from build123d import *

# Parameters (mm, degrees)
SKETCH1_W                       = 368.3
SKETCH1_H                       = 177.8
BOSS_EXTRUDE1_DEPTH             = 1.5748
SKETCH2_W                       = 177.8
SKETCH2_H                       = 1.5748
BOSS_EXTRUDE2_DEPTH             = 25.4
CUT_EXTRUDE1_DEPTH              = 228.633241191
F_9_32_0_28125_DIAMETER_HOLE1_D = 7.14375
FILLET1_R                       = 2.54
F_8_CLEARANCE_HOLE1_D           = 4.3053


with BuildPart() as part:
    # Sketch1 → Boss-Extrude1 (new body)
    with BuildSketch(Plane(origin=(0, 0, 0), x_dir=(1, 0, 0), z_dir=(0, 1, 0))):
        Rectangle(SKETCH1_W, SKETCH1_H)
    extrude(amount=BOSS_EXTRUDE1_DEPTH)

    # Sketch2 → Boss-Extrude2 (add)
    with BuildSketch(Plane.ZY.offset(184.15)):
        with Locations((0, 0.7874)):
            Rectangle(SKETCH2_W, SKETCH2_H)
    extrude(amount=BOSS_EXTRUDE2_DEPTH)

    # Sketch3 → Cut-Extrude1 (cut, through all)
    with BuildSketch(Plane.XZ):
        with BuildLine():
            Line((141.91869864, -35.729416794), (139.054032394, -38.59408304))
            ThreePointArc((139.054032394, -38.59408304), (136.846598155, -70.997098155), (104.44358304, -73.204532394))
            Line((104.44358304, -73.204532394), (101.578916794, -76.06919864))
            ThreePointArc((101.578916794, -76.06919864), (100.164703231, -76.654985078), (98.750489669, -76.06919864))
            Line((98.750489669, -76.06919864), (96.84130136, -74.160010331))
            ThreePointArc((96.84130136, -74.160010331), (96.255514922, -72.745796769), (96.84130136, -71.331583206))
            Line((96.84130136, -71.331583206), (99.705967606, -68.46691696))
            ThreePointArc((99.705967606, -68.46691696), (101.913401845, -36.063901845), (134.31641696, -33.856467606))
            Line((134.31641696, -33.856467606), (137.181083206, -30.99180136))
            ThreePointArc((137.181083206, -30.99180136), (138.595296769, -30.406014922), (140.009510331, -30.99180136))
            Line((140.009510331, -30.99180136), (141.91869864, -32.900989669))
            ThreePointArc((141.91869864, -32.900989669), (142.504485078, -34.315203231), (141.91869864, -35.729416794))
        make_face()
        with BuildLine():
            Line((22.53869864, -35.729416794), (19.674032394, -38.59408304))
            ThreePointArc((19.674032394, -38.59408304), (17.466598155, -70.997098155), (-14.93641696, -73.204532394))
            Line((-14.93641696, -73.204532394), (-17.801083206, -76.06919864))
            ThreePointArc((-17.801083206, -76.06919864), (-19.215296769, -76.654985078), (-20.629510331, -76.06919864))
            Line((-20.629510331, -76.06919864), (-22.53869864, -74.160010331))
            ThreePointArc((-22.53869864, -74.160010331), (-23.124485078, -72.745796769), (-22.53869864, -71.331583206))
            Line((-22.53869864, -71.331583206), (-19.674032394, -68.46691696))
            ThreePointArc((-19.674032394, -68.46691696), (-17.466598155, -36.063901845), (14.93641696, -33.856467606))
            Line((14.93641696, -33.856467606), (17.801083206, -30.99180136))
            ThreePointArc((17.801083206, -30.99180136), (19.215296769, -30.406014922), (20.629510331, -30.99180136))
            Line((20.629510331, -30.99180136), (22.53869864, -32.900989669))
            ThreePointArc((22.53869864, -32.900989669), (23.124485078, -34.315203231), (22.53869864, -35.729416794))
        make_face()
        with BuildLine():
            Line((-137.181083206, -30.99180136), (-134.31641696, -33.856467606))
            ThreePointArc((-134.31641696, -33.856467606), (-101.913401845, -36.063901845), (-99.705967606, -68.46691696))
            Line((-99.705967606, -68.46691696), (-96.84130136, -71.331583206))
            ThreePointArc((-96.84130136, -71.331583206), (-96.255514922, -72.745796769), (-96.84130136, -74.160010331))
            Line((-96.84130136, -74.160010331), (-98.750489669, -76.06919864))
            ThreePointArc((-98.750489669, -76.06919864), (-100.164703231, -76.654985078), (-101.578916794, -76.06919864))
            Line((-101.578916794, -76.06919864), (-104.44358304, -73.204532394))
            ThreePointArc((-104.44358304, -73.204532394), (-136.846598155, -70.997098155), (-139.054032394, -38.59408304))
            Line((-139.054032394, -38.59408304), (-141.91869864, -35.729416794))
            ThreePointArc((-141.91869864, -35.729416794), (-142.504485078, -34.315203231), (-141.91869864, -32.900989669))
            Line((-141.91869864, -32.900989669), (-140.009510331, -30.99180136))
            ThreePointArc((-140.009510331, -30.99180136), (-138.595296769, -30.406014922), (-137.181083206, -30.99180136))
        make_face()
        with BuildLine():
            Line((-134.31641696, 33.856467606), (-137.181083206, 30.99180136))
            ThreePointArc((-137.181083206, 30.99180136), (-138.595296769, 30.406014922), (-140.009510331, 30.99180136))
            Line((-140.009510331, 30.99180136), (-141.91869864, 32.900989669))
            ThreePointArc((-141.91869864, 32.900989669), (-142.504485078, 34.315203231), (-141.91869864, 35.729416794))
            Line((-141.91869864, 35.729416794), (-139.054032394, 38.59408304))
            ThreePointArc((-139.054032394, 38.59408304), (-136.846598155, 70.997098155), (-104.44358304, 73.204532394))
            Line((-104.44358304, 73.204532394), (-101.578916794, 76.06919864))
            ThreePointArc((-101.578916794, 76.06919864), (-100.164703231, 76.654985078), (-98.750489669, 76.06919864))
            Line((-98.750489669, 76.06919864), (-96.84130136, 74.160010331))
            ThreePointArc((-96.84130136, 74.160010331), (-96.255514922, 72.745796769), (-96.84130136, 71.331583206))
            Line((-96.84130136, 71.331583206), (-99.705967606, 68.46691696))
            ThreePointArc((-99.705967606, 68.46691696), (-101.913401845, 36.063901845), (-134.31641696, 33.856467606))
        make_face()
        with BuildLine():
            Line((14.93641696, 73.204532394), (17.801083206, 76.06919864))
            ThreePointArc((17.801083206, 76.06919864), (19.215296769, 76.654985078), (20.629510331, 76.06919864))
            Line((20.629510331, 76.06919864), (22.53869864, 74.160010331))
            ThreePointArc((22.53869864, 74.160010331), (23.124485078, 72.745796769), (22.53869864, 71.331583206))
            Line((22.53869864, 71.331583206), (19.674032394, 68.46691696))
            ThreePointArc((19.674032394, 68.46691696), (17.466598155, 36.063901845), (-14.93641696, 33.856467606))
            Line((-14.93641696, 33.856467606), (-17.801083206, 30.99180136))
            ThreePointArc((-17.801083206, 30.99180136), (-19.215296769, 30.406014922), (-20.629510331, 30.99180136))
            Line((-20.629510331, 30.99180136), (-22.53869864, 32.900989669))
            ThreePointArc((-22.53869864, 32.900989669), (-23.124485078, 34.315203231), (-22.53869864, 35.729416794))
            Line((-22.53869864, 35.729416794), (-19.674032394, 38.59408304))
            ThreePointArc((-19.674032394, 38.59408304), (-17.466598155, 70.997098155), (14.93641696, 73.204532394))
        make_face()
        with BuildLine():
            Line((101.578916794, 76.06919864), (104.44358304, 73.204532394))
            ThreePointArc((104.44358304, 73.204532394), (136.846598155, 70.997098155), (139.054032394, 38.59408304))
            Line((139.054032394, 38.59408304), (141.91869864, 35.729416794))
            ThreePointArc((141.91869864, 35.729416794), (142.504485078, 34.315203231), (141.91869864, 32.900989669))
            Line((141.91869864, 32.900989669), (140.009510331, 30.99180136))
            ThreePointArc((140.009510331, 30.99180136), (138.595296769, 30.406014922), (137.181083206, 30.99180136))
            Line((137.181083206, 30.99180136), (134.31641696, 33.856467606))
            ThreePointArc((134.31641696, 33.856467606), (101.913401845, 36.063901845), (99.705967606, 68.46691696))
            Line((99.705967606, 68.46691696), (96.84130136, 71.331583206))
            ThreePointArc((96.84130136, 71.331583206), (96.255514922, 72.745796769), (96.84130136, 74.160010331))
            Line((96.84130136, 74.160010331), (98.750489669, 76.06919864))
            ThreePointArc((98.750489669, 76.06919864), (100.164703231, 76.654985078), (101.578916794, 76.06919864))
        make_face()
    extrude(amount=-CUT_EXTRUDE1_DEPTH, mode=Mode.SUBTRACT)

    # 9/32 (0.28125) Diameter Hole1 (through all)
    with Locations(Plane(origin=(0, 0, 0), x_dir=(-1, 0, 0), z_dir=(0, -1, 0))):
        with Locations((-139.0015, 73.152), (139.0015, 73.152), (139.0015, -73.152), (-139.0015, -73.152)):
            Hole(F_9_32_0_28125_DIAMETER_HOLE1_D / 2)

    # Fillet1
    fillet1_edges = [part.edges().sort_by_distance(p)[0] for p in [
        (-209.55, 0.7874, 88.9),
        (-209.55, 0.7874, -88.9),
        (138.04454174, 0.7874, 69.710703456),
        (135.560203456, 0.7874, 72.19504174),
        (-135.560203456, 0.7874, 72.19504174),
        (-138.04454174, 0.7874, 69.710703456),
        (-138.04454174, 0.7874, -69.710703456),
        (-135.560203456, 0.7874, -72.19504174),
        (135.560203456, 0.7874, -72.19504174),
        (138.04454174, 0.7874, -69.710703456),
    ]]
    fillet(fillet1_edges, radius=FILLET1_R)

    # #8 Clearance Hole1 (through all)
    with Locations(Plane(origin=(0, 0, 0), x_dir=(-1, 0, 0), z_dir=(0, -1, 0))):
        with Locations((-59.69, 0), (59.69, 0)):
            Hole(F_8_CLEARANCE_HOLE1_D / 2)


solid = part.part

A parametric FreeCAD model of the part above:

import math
import FreeCAD as App
import Part
import Sketcher
Q = App.Units.Quantity


def edges_at(feature, points):
    """Names of the edges that pass closest to the given points."""
    edges = feature.Shape.Edges
    near = lambda p: min(range(len(edges)), key=lambda i: edges[i].distToShape(Part.Vertex(*p))[0])
    return sorted({f"Edge{near(p) + 1}" for p in points})


def add_polygon(sketch, points):
    """Adds a closed chain of lines whose ends are joined by coincident constraints."""
    first, n = sketch.GeometryCount, len(points)
    for a, b in zip(points, points[1:] + points[:1]):
        sketch.addGeometry(Part.LineSegment(App.Vector(*a, 0), App.Vector(*b, 0)), False)
    for i in range(n):
        sketch.addConstraint(Sketcher.Constraint("Coincident", first + i, 2, first + (i + 1) % n, 1))

doc = App.newDocument("Part")
body = doc.addObject("PartDesign::Body", "Body")

# Sketch on XZ plane
sketch1 = body.newObject("Sketcher::SketchObject", "Sketch")
sketch1.AttachmentSupport = (doc.getObject("XZ_Plane"), [""])
sketch1.MapMode = "FlatFace"
add_polygon(sketch1, [(-184.15, -88.9), (-184.15, 88.9), (184.15, 88.9), (184.15, -88.9)])  # lines 0-3
sketch1.addConstraint(Sketcher.Constraint("Vertical", 0))
sketch1.addConstraint(Sketcher.Constraint("Horizontal", 1))
sketch1.addConstraint(Sketcher.Constraint("Vertical", 2))
sketch1.addConstraint(Sketcher.Constraint("Horizontal", 3))
sketch1.addConstraint(Sketcher.Constraint("Symmetric", 0, 2, 2, 2, -1, 1))
sketch1.addConstraint(Sketcher.Constraint("DistanceY", 0, 1, 0, 2, Q("7 in")))
sketch1.addConstraint(Sketcher.Constraint("DistanceX", 1, 1, 1, 2, Q("14.5 in")))
pad1 = body.newObject("PartDesign::Pad", "Pad")
pad1.Profile = sketch1
pad1.Length = Q("0.062 in")
pad1.Reversed = True

# Sketch on YZ plane
sketch2 = body.newObject("Sketcher::SketchObject", "Sketch001")
sketch2.AttachmentSupport = (doc.getObject("YZ_Plane"), [""])
sketch2.MapMode = "FlatFace"
sketch2.AttachmentOffset = App.Placement(App.Vector(0, 0, -7.25 * 25.4), App.Rotation())
add_polygon(sketch2, [(1.5748, -88.9), (0, -88.9), (0, 88.9), (1.5748, 88.9)])  # lines 0-3
sketch2.addConstraint(Sketcher.Constraint("Horizontal", 0))
sketch2.addConstraint(Sketcher.Constraint("Vertical", 1))
sketch2.addConstraint(Sketcher.Constraint("Horizontal", 2))
sketch2.addConstraint(Sketcher.Constraint("Vertical", 3))
sketch2.addConstraint(Sketcher.Constraint("Symmetric", 0, 2, 1, 2, -1, 1))
sketch2.addConstraint(Sketcher.Constraint("DistanceY", 1, 1, 1, 2, Q("7 in")))
sketch2.addConstraint(Sketcher.Constraint("DistanceX", 0, 2, 0, 1, Q("0.062 in")))
pad2 = body.newObject("PartDesign::Pad", "Pad001")
pad2.Profile = sketch2
pad2.Length = Q("1 in")
pad2.Reversed = True

# Sketch on XZ plane
sketch3 = body.newObject("Sketcher::SketchObject", "Sketch002")
sketch3.AttachmentSupport = (doc.getObject("XZ_Plane"), [""])
sketch3.MapMode = "FlatFace"
sketch3.addGeometry(Part.LineSegment(App.Vector(139.054032, -38.594083, 0), App.Vector(141.918699, -35.729417, 0)), False)
sketch3.addGeometry(Part.ArcOfCircle(Part.Circle(App.Vector(140.504485, -34.315203, 0), App.Vector(0, 0, 1), 2), math.radians(-45), math.radians(45)), False)
sketch3.addGeometry(Part.LineSegment(App.Vector(141.918699, -32.90099, 0), App.Vector(140.00951, -30.991801, 0)), False)
sketch3.addGeometry(Part.ArcOfCircle(Part.Circle(App.Vector(138.595297, -32.406015, 0), App.Vector(0, 0, 1), 2), math.radians(45), math.radians(135)), False)
sketch3.addGeometry(Part.LineSegment(App.Vector(137.181083, -30.991801, 0), App.Vector(134.316417, -33.856468, 0)), False)
sketch3.addGeometry(Part.ArcOfCircle(Part.Circle(App.Vector(119.38, -53.5305, 0), App.Vector(0, 0, 1), 24.7015), math.radians(52.794432), math.radians(217.205568)), False)
sketch3.addGeometry(Part.LineSegment(App.Vector(99.705968, -68.466917, 0), App.Vector(96.841301, -71.331583, 0)), False)
sketch3.addGeometry(Part.ArcOfCircle(Part.Circle(App.Vector(98.255515, -72.745797, 0), App.Vector(0, 0, 1), 2), math.radians(135), math.radians(225)), False)
sketch3.addGeometry(Part.LineSegment(App.Vector(96.841301, -74.16001, 0), App.Vector(98.75049, -76.069199, 0)), False)
sketch3.addGeometry(Part.ArcOfCircle(Part.Circle(App.Vector(100.164703, -74.654985, 0), App.Vector(0, 0, 1), 2), math.radians(-135), math.radians(-45)), False)
sketch3.addGeometry(Part.LineSegment(App.Vector(101.578917, -76.069199, 0), App.Vector(104.443583, -73.204532, 0)), False)
sketch3.addGeometry(Part.ArcOfCircle(Part.Circle(App.Vector(119.38, -53.5305, 0), App.Vector(0, 0, 1), 24.7015), math.radians(-127.205568), math.radians(37.205568)), False)
sketch3.addGeometry(Part.LineSegment(App.Vector(19.674032, -38.594083, 0), App.Vector(22.538699, -35.729417, 0)), False)
sketch3.addGeometry(Part.ArcOfCircle(Part.Circle(App.Vector(21.124485, -34.315203, 0), App.Vector(0, 0, 1), 2), math.radians(-45), math.radians(45)), False)
sketch3.addGeometry(Part.LineSegment(App.Vector(22.538699, -32.90099, 0), App.Vector(20.62951, -30.991801, 0)), False)
sketch3.addGeometry(Part.ArcOfCircle(Part.Circle(App.Vector(19.215297, -32.406015, 0), App.Vector(0, 0, 1), 2), math.radians(45), math.radians(135)), False)
sketch3.addGeometry(Part.LineSegment(App.Vector(17.801083, -30.991801, 0), App.Vector(14.936417, -33.856468, 0)), False)
sketch3.addGeometry(Part.ArcOfCircle(Part.Circle(App.Vector(0, -53.5305, 0), App.Vector(0, 0, 1), 24.7015), math.radians(52.794432), math.radians(217.205568)), False)
sketch3.addGeometry(Part.LineSegment(App.Vector(-19.674032, -68.466917, 0), App.Vector(-22.538699, -71.331583, 0)), False)
sketch3.addGeometry(Part.ArcOfCircle(Part.Circle(App.Vector(-21.124485, -72.745797, 0), App.Vector(0, 0, 1), 2), math.radians(135), math.radians(225)), False)
sketch3.addGeometry(Part.LineSegment(App.Vector(-22.538699, -74.16001, 0), App.Vector(-20.62951, -76.069199, 0)), False)
sketch3.addGeometry(Part.ArcOfCircle(Part.Circle(App.Vector(-19.215297, -74.654985, 0), App.Vector(0, 0, 1), 2), math.radians(-135), math.radians(-45)), False)
sketch3.addGeometry(Part.LineSegment(App.Vector(-17.801083, -76.069199, 0), App.Vector(-14.936417, -73.204532, 0)), False)
sketch3.addGeometry(Part.ArcOfCircle(Part.Circle(App.Vector(0, -53.5305, 0), App.Vector(0, 0, 1), 24.7015), math.radians(-127.205568), math.radians(37.205568)), False)
sketch3.addGeometry(Part.LineSegment(App.Vector(-134.316417, -33.856468, 0), App.Vector(-137.181083, -30.991801, 0)), False)
sketch3.addGeometry(Part.ArcOfCircle(Part.Circle(App.Vector(-138.595297, -32.406015, 0), App.Vector(0, 0, 1), 2), math.radians(45), math.radians(135)), False)
sketch3.addGeometry(Part.LineSegment(App.Vector(-140.00951, -30.991801, 0), App.Vector(-141.918699, -32.90099, 0)), False)
sketch3.addGeometry(Part.ArcOfCircle(Part.Circle(App.Vector(-140.504485, -34.315203, 0), App.Vector(0, 0, 1), 2), math.radians(135), math.radians(225)), False)
sketch3.addGeometry(Part.LineSegment(App.Vector(-141.918699, -35.729417, 0), App.Vector(-139.054032, -38.594083, 0)), False)
sketch3.addGeometry(Part.ArcOfCircle(Part.Circle(App.Vector(-119.38, -53.5305, 0), App.Vector(0, 0, 1), 24.7015), math.radians(142.794432), math.radians(307.205568)), False)
sketch3.addGeometry(Part.LineSegment(App.Vector(-104.443583, -73.204532, 0), App.Vector(-101.578917, -76.069199, 0)), False)
sketch3.addGeometry(Part.ArcOfCircle(Part.Circle(App.Vector(-100.164703, -74.654985, 0), App.Vector(0, 0, 1), 2), math.radians(-135), math.radians(-45)), False)
sketch3.addGeometry(Part.LineSegment(App.Vector(-98.75049, -76.069199, 0), App.Vector(-96.841301, -74.16001, 0)), False)
sketch3.addGeometry(Part.ArcOfCircle(Part.Circle(App.Vector(-98.255515, -72.745797, 0), App.Vector(0, 0, 1), 2), math.radians(-45), math.radians(45)), False)
sketch3.addGeometry(Part.LineSegment(App.Vector(-96.841301, -71.331583, 0), App.Vector(-99.705968, -68.466917, 0)), False)
sketch3.addGeometry(Part.ArcOfCircle(Part.Circle(App.Vector(-119.38, -53.5305, 0), App.Vector(0, 0, 1), 24.7015), math.radians(-37.205568), math.radians(127.205568)), False)
sketch3.addGeometry(Part.LineSegment(App.Vector(-137.181083, 30.991801, 0), App.Vector(-134.316417, 33.856468, 0)), False)
sketch3.addGeometry(Part.ArcOfCircle(Part.Circle(App.Vector(-119.38, 53.5305, 0), App.Vector(0, 0, 1), 24.7015), math.radians(-127.205568), math.radians(37.205568)), False)
sketch3.addGeometry(Part.LineSegment(App.Vector(-99.705968, 68.466917, 0), App.Vector(-96.841301, 71.331583, 0)), False)
sketch3.addGeometry(Part.ArcOfCircle(Part.Circle(App.Vector(-98.255515, 72.745797, 0), App.Vector(0, 0, 1), 2), math.radians(-45), math.radians(45)), False)
sketch3.addGeometry(Part.LineSegment(App.Vector(-96.841301, 74.16001, 0), App.Vector(-98.75049, 76.069199, 0)), False)
sketch3.addGeometry(Part.ArcOfCircle(Part.Circle(App.Vector(-100.164703, 74.654985, 0), App.Vector(0, 0, 1), 2), math.radians(45), math.radians(135)), False)
sketch3.addGeometry(Part.LineSegment(App.Vector(-101.578917, 76.069199, 0), App.Vector(-104.443583, 73.204532, 0)), False)
sketch3.addGeometry(Part.ArcOfCircle(Part.Circle(App.Vector(-119.38, 53.5305, 0), App.Vector(0, 0, 1), 24.7015), math.radians(52.794432), math.radians(217.205568)), False)
sketch3.addGeometry(Part.LineSegment(App.Vector(-139.054032, 38.594083, 0), App.Vector(-141.918699, 35.729417, 0)), False)
sketch3.addGeometry(Part.ArcOfCircle(Part.Circle(App.Vector(-140.504485, 34.315203, 0), App.Vector(0, 0, 1), 2), math.radians(135), math.radians(225)), False)
sketch3.addGeometry(Part.LineSegment(App.Vector(-141.918699, 32.90099, 0), App.Vector(-140.00951, 30.991801, 0)), False)
sketch3.addGeometry(Part.ArcOfCircle(Part.Circle(App.Vector(-138.595297, 32.406015, 0), App.Vector(0, 0, 1), 2), math.radians(-135), math.radians(-45)), False)
sketch3.addGeometry(Part.LineSegment(App.Vector(17.801083, 76.069199, 0), App.Vector(14.936417, 73.204532, 0)), False)
sketch3.addGeometry(Part.ArcOfCircle(Part.Circle(App.Vector(0, 53.5305, 0), App.Vector(0, 0, 1), 24.7015), math.radians(52.794432), math.radians(217.205568)), False)
sketch3.addGeometry(Part.LineSegment(App.Vector(-19.674032, 38.594083, 0), App.Vector(-22.538699, 35.729417, 0)), False)
sketch3.addGeometry(Part.ArcOfCircle(Part.Circle(App.Vector(-21.124485, 34.315203, 0), App.Vector(0, 0, 1), 2), math.radians(135), math.radians(225)), False)
sketch3.addGeometry(Part.LineSegment(App.Vector(-22.538699, 32.90099, 0), App.Vector(-20.62951, 30.991801, 0)), False)
sketch3.addGeometry(Part.ArcOfCircle(Part.Circle(App.Vector(-19.215297, 32.406015, 0), App.Vector(0, 0, 1), 2), math.radians(-135), math.radians(-45)), False)
sketch3.addGeometry(Part.LineSegment(App.Vector(-17.801083, 30.991801, 0), App.Vector(-14.936417, 33.856468, 0)), False)
sketch3.addGeometry(Part.ArcOfCircle(Part.Circle(App.Vector(0, 53.5305, 0), App.Vector(0, 0, 1), 24.7015), math.radians(-127.205568), math.radians(37.205568)), False)
sketch3.addGeometry(Part.LineSegment(App.Vector(19.674032, 68.466917, 0), App.Vector(22.538699, 71.331583, 0)), False)
sketch3.addGeometry(Part.ArcOfCircle(Part.Circle(App.Vector(21.124485, 72.745797, 0), App.Vector(0, 0, 1), 2), math.radians(-45), math.radians(45)), False)
sketch3.addGeometry(Part.LineSegment(App.Vector(22.538699, 74.16001, 0), App.Vector(20.62951, 76.069199, 0)), False)
sketch3.addGeometry(Part.ArcOfCircle(Part.Circle(App.Vector(19.215297, 74.654985, 0), App.Vector(0, 0, 1), 2), math.radians(45), math.radians(135)), False)
sketch3.addGeometry(Part.LineSegment(App.Vector(104.443583, 73.204532, 0), App.Vector(101.578917, 76.069199, 0)), False)
sketch3.addGeometry(Part.ArcOfCircle(Part.Circle(App.Vector(100.164703, 74.654985, 0), App.Vector(0, 0, 1), 2), math.radians(45), math.radians(135)), False)
sketch3.addGeometry(Part.LineSegment(App.Vector(98.75049, 76.069199, 0), App.Vector(96.841301, 74.16001, 0)), False)
sketch3.addGeometry(Part.ArcOfCircle(Part.Circle(App.Vector(98.255515, 72.745797, 0), App.Vector(0, 0, 1), 2), math.radians(135), math.radians(225)), False)
sketch3.addGeometry(Part.LineSegment(App.Vector(96.841301, 71.331583, 0), App.Vector(99.705968, 68.466917, 0)), False)
sketch3.addGeometry(Part.ArcOfCircle(Part.Circle(App.Vector(119.38, 53.5305, 0), App.Vector(0, 0, 1), 24.7015), math.radians(142.794432), math.radians(307.205568)), False)
sketch3.addGeometry(Part.LineSegment(App.Vector(134.316417, 33.856468, 0), App.Vector(137.181083, 30.991801, 0)), False)
sketch3.addGeometry(Part.ArcOfCircle(Part.Circle(App.Vector(138.595297, 32.406015, 0), App.Vector(0, 0, 1), 2), math.radians(-135), math.radians(-45)), False)
sketch3.addGeometry(Part.LineSegment(App.Vector(140.00951, 30.991801, 0), App.Vector(141.918699, 32.90099, 0)), False)
sketch3.addGeometry(Part.ArcOfCircle(Part.Circle(App.Vector(140.504485, 34.315203, 0), App.Vector(0, 0, 1), 2), math.radians(-45), math.radians(45)), False)
sketch3.addGeometry(Part.LineSegment(App.Vector(141.918699, 35.729417, 0), App.Vector(139.054032, 38.594083, 0)), False)
sketch3.addGeometry(Part.ArcOfCircle(Part.Circle(App.Vector(119.38, 53.5305, 0), App.Vector(0, 0, 1), 24.7015), math.radians(-37.205568), math.radians(127.205568)), False)
sketch3.addConstraint(Sketcher.Constraint("Tangent", 0, 2, 1, 1))
sketch3.addConstraint(Sketcher.Constraint("Tangent", 1, 2, 2, 1))
sketch3.addConstraint(Sketcher.Constraint("Tangent", 2, 2, 3, 1))
sketch3.addConstraint(Sketcher.Constraint("Tangent", 3, 2, 4, 1))
sketch3.addConstraint(Sketcher.Constraint("Coincident", 4, 2, 5, 1))
sketch3.addConstraint(Sketcher.Constraint("Coincident", 5, 2, 6, 1))
sketch3.addConstraint(Sketcher.Constraint("Tangent", 6, 2, 7, 1))
sketch3.addConstraint(Sketcher.Constraint("Tangent", 7, 2, 8, 1))
sketch3.addConstraint(Sketcher.Constraint("Tangent", 8, 2, 9, 1))
sketch3.addConstraint(Sketcher.Constraint("Tangent", 9, 2, 10, 1))
sketch3.addConstraint(Sketcher.Constraint("Coincident", 10, 2, 11, 1))
sketch3.addConstraint(Sketcher.Constraint("Coincident", 11, 2, 0, 1))
sketch3.addConstraint(Sketcher.Constraint("Tangent", 12, 2, 13, 1))
sketch3.addConstraint(Sketcher.Constraint("Tangent", 13, 2, 14, 1))
sketch3.addConstraint(Sketcher.Constraint("Tangent", 14, 2, 15, 1))
sketch3.addConstraint(Sketcher.Constraint("Tangent", 15, 2, 16, 1))
sketch3.addConstraint(Sketcher.Constraint("Coincident", 16, 2, 17, 1))
sketch3.addConstraint(Sketcher.Constraint("Coincident", 17, 2, 18, 1))
sketch3.addConstraint(Sketcher.Constraint("Tangent", 18, 2, 19, 1))
sketch3.addConstraint(Sketcher.Constraint("Tangent", 19, 2, 20, 1))
sketch3.addConstraint(Sketcher.Constraint("Tangent", 20, 2, 21, 1))
sketch3.addConstraint(Sketcher.Constraint("Tangent", 21, 2, 22, 1))
sketch3.addConstraint(Sketcher.Constraint("Coincident", 22, 2, 23, 1))
sketch3.addConstraint(Sketcher.Constraint("Coincident", 23, 2, 12, 1))
sketch3.addConstraint(Sketcher.Constraint("Tangent", 24, 2, 25, 1))
sketch3.addConstraint(Sketcher.Constraint("Tangent", 25, 2, 26, 1))
sketch3.addConstraint(Sketcher.Constraint("Tangent", 26, 2, 27, 1))
sketch3.addConstraint(Sketcher.Constraint("Tangent", 27, 2, 28, 1))
sketch3.addConstraint(Sketcher.Constraint("Coincident", 28, 2, 29, 1))
sketch3.addConstraint(Sketcher.Constraint("Coincident", 29, 2, 30, 1))
sketch3.addConstraint(Sketcher.Constraint("Tangent", 30, 2, 31, 1))
sketch3.addConstraint(Sketcher.Constraint("Tangent", 31, 2, 32, 1))
sketch3.addConstraint(Sketcher.Constraint("Tangent", 32, 2, 33, 1))
sketch3.addConstraint(Sketcher.Constraint("Tangent", 33, 2, 34, 1))
sketch3.addConstraint(Sketcher.Constraint("Coincident", 34, 2, 35, 1))
sketch3.addConstraint(Sketcher.Constraint("Coincident", 35, 2, 24, 1))
sketch3.addConstraint(Sketcher.Constraint("Coincident", 36, 2, 37, 1))
sketch3.addConstraint(Sketcher.Constraint("Coincident", 37, 2, 38, 1))
sketch3.addConstraint(Sketcher.Constraint("Tangent", 38, 2, 39, 1))
sketch3.addConstraint(Sketcher.Constraint("Tangent", 39, 2, 40, 1))
sketch3.addConstraint(Sketcher.Constraint("Tangent", 40, 2, 41, 1))
sketch3.addConstraint(Sketcher.Constraint("Tangent", 41, 2, 42, 1))
sketch3.addConstraint(Sketcher.Constraint("Coincident", 42, 2, 43, 1))
sketch3.addConstraint(Sketcher.Constraint("Coincident", 43, 2, 44, 1))
sketch3.addConstraint(Sketcher.Constraint("Tangent", 44, 2, 45, 1))
sketch3.addConstraint(Sketcher.Constraint("Tangent", 45, 2, 46, 1))
sketch3.addConstraint(Sketcher.Constraint("Tangent", 46, 2, 47, 1))
sketch3.addConstraint(Sketcher.Constraint("Tangent", 47, 2, 36, 1))
sketch3.addConstraint(Sketcher.Constraint("Coincident", 48, 2, 49, 1))
sketch3.addConstraint(Sketcher.Constraint("Coincident", 49, 2, 50, 1))
sketch3.addConstraint(Sketcher.Constraint("Tangent", 50, 2, 51, 1))
sketch3.addConstraint(Sketcher.Constraint("Tangent", 51, 2, 52, 1))
sketch3.addConstraint(Sketcher.Constraint("Tangent", 52, 2, 53, 1))
sketch3.addConstraint(Sketcher.Constraint("Tangent", 53, 2, 54, 1))
sketch3.addConstraint(Sketcher.Constraint("Coincident", 54, 2, 55, 1))
sketch3.addConstraint(Sketcher.Constraint("Coincident", 55, 2, 56, 1))
sketch3.addConstraint(Sketcher.Constraint("Tangent", 56, 2, 57, 1))
sketch3.addConstraint(Sketcher.Constraint("Tangent", 57, 2, 58, 1))
sketch3.addConstraint(Sketcher.Constraint("Tangent", 58, 2, 59, 1))
sketch3.addConstraint(Sketcher.Constraint("Tangent", 59, 2, 48, 1))
sketch3.addConstraint(Sketcher.Constraint("Tangent", 60, 2, 61, 1))
sketch3.addConstraint(Sketcher.Constraint("Tangent", 61, 2, 62, 1))
sketch3.addConstraint(Sketcher.Constraint("Tangent", 62, 2, 63, 1))
sketch3.addConstraint(Sketcher.Constraint("Tangent", 63, 2, 64, 1))
sketch3.addConstraint(Sketcher.Constraint("Coincident", 64, 2, 65, 1))
sketch3.addConstraint(Sketcher.Constraint("Coincident", 65, 2, 66, 1))
sketch3.addConstraint(Sketcher.Constraint("Tangent", 66, 2, 67, 1))
sketch3.addConstraint(Sketcher.Constraint("Tangent", 67, 2, 68, 1))
sketch3.addConstraint(Sketcher.Constraint("Tangent", 68, 2, 69, 1))
sketch3.addConstraint(Sketcher.Constraint("Tangent", 69, 2, 70, 1))
sketch3.addConstraint(Sketcher.Constraint("Coincident", 70, 2, 71, 1))
sketch3.addConstraint(Sketcher.Constraint("Coincident", 71, 2, 60, 1))
sketch3.addConstraint(Sketcher.Constraint("Coincident", 11, 3, 5, 3))
sketch3.addConstraint(Sketcher.Constraint("Coincident", 23, 3, 17, 3))
sketch3.addConstraint(Sketcher.Constraint("Coincident", 35, 3, 29, 3))
sketch3.addConstraint(Sketcher.Constraint("Coincident", 43, 3, 37, 3))
sketch3.addConstraint(Sketcher.Constraint("Coincident", 55, 3, 49, 3))
sketch3.addConstraint(Sketcher.Constraint("Coincident", 71, 3, 65, 3))
sketch3.addConstraint(Sketcher.Constraint("Equal", 1, 3))
sketch3.addConstraint(Sketcher.Constraint("Equal", 3, 7))
sketch3.addConstraint(Sketcher.Constraint("Equal", 7, 9))
sketch3.addConstraint(Sketcher.Constraint("Equal", 5, 11))
sketch3.addConstraint(Sketcher.Constraint("Equal", 9, 13))
sketch3.addConstraint(Sketcher.Constraint("Equal", 13, 15))
sketch3.addConstraint(Sketcher.Constraint("Equal", 11, 17))
sketch3.addConstraint(Sketcher.Constraint("Equal", 15, 19))
sketch3.addConstraint(Sketcher.Constraint("Equal", 19, 21))
sketch3.addConstraint(Sketcher.Constraint("Equal", 17, 23))
sketch3.addConstraint(Sketcher.Constraint("Equal", 21, 25))
sketch3.addConstraint(Sketcher.Constraint("Equal", 25, 27))
sketch3.addConstraint(Sketcher.Constraint("Equal", 23, 29))
sketch3.addConstraint(Sketcher.Constraint("Equal", 27, 31))
sketch3.addConstraint(Sketcher.Constraint("Equal", 31, 33))
sketch3.addConstraint(Sketcher.Constraint("Equal", 29, 35))
sketch3.addConstraint(Sketcher.Constraint("Equal", 35, 37))
sketch3.addConstraint(Sketcher.Constraint("Equal", 33, 39))
sketch3.addConstraint(Sketcher.Constraint("Equal", 39, 41))
sketch3.addConstraint(Sketcher.Constraint("Equal", 37, 43))
sketch3.addConstraint(Sketcher.Constraint("Equal", 41, 45))
sketch3.addConstraint(Sketcher.Constraint("Equal", 45, 47))
sketch3.addConstraint(Sketcher.Constraint("Equal", 43, 49))
sketch3.addConstraint(Sketcher.Constraint("Equal", 47, 51))
sketch3.addConstraint(Sketcher.Constraint("Equal", 51, 53))
sketch3.addConstraint(Sketcher.Constraint("Equal", 49, 55))
sketch3.addConstraint(Sketcher.Constraint("Equal", 53, 57))
sketch3.addConstraint(Sketcher.Constraint("Equal", 57, 59))
sketch3.addConstraint(Sketcher.Constraint("Equal", 59, 61))
sketch3.addConstraint(Sketcher.Constraint("Equal", 61, 63))
sketch3.addConstraint(Sketcher.Constraint("Equal", 55, 65))
sketch3.addConstraint(Sketcher.Constraint("Equal", 63, 67))
sketch3.addConstraint(Sketcher.Constraint("Equal", 67, 69))
sketch3.addConstraint(Sketcher.Constraint("Equal", 65, 71))
sketch3.addConstraint(Sketcher.Constraint("Symmetric", 5, 3, 37, 3, -1, 1))
sketch3.addConstraint(Sketcher.Constraint("Symmetric", 7, 3, 39, 3, -1, 1))
sketch3.addConstraint(Sketcher.Constraint("Symmetric", 9, 3, 41, 3, -1, 1))
sketch3.addConstraint(Sketcher.Constraint("Symmetric", 1, 3, 45, 3, -1, 1))
sketch3.addConstraint(Sketcher.Constraint("Symmetric", 3, 3, 47, 3, -1, 1))
sketch3.addConstraint(Sketcher.Constraint("Symmetric", 17, 3, 49, 3, -1, 1))
sketch3.addConstraint(Sketcher.Constraint("Symmetric", 13, 3, 51, 3, -1, 1))
sketch3.addConstraint(Sketcher.Constraint("Symmetric", 15, 3, 53, 3, -1, 1))
sketch3.addConstraint(Sketcher.Constraint("Symmetric", 19, 3, 57, 3, -1, 1))
sketch3.addConstraint(Sketcher.Constraint("Symmetric", 21, 3, 59, 3, -1, 1))
sketch3.addConstraint(Sketcher.Constraint("Symmetric", 31, 3, 61, 3, -1, 1))
sketch3.addConstraint(Sketcher.Constraint("Symmetric", 33, 3, 63, 3, -1, 1))
sketch3.addConstraint(Sketcher.Constraint("Symmetric", 29, 3, 65, 3, -1, 1))
sketch3.addConstraint(Sketcher.Constraint("Symmetric", 25, 3, 67, 3, -1, 1))
sketch3.addConstraint(Sketcher.Constraint("Symmetric", 27, 3, 69, 3, -1, 1))
sketch3.addConstraint(Sketcher.Constraint("Symmetric", 3, 3, 25, 3, -2))
sketch3.addConstraint(Sketcher.Constraint("Symmetric", 1, 3, 27, 3, -2))
sketch3.addConstraint(Sketcher.Constraint("Symmetric", 5, 3, 29, 3, -2))
sketch3.addConstraint(Sketcher.Constraint("Symmetric", 9, 3, 31, 3, -2))
sketch3.addConstraint(Sketcher.Constraint("Symmetric", 7, 3, 33, 3, -2))
sketch3.addConstraint(Sketcher.Constraint("PointOnObject", 17, 3, -2))
sketch3.addConstraint(Sketcher.Constraint("Perpendicular", 0, 2))
sketch3.addConstraint(Sketcher.Constraint("Perpendicular", 2, 4))
sketch3.addConstraint(Sketcher.Constraint("Parallel", 4, 6))
sketch3.addConstraint(Sketcher.Constraint("Perpendicular", 6, 8))
sketch3.addConstraint(Sketcher.Constraint("Perpendicular", 8, 10))
sketch3.addConstraint(Sketcher.Constraint("Parallel", 10, 12))
sketch3.addConstraint(Sketcher.Constraint("Perpendicular", 12, 14))
sketch3.addConstraint(Sketcher.Constraint("Perpendicular", 14, 16))
sketch3.addConstraint(Sketcher.Constraint("Parallel", 16, 18))
sketch3.addConstraint(Sketcher.Constraint("Perpendicular", 18, 20))
sketch3.addConstraint(Sketcher.Constraint("Perpendicular", 20, 22))
sketch3.addConstraint(Sketcher.Constraint("Perpendicular", 22, 24))
sketch3.addConstraint(Sketcher.Constraint("Perpendicular", 24, 26))
sketch3.addConstraint(Sketcher.Constraint("Perpendicular", 26, 28))
sketch3.addConstraint(Sketcher.Constraint("Parallel", 28, 30))
sketch3.addConstraint(Sketcher.Constraint("Perpendicular", 32, 34))
sketch3.addConstraint(Sketcher.Constraint("Perpendicular", 34, 36))
sketch3.addConstraint(Sketcher.Constraint("Parallel", 36, 38))
sketch3.addConstraint(Sketcher.Constraint("Perpendicular", 40, 42))
sketch3.addConstraint(Sketcher.Constraint("Parallel", 42, 44))
sketch3.addConstraint(Sketcher.Constraint("Perpendicular", 46, 48))
sketch3.addConstraint(Sketcher.Constraint("Parallel", 48, 50))
sketch3.addConstraint(Sketcher.Constraint("Perpendicular", 52, 54))
sketch3.addConstraint(Sketcher.Constraint("Parallel", 54, 56))
sketch3.addConstraint(Sketcher.Constraint("Parallel", 58, 60))
sketch3.addConstraint(Sketcher.Constraint("Perpendicular", 62, 64))
sketch3.addConstraint(Sketcher.Constraint("Parallel", 64, 66))
sketch3.addConstraint(Sketcher.Constraint("Perpendicular", 68, 70))
sketch3.addConstraint(Sketcher.Constraint("Horizontal", 1, 3, 13, 3))
sketch3.addConstraint(Sketcher.Constraint("Horizontal", 3, 3, 15, 3))
sketch3.addConstraint(Sketcher.Constraint("Horizontal", 11, 3, 17, 3))
sketch3.addConstraint(Sketcher.Constraint("Horizontal", 7, 3, 19, 3))
sketch3.addConstraint(Sketcher.Constraint("Horizontal", 9, 3, 21, 3))
sketch3.addConstraint(Sketcher.Constraint("Horizontal", 4, 2, 16, 2))
sketch3.addConstraint(Sketcher.Constraint("Horizontal", 5, 2, 17, 2))
sketch3.addConstraint(Sketcher.Constraint("Vertical", 19, 3, 51, 3))
sketch3.addConstraint(Sketcher.Constraint("Vertical", 21, 3, 53, 3))
sketch3.addConstraint(Sketcher.Constraint("Vertical", 16, 2, 48, 2))
sketch3.addConstraint(Sketcher.Constraint("Equal", 0, 4))
sketch3.addConstraint(Sketcher.Constraint("DistanceX", -1, 1, 5, 3, Q("4.7 in")))
sketch3.addConstraint(Sketcher.Constraint("Radius", 5, Q("0.9725 in")))
sketch3.addConstraint(Sketcher.Constraint("Radius", 1, 2.0))
sketch3.addConstraint(Sketcher.Constraint("DistanceY", 5, 3, -1, 1, Q("2.1075 in")))
sketch3.addConstraint(Sketcher.Constraint("Distance", 2, 2.7))
sketch3.addConstraint(Sketcher.Constraint("DistanceX", -1, 1, 0, 2, 141.918699))
pocket1 = body.newObject("PartDesign::Pocket", "Pocket")
pocket1.Profile = sketch3
pocket1.Type = "ThroughAll"

# Sketch on XZ plane
sketch4 = body.newObject("Sketcher::SketchObject", "Sketch003")
sketch4.AttachmentSupport = (doc.getObject("XZ_Plane"), [""])
sketch4.MapMode = "FlatFace"
sketch4.addGeometry(Part.Circle(App.Vector(139.0015, -73.152, 0), App.Vector(0, 0, 1), 3.571875), False)
sketch4.addGeometry(Part.Circle(App.Vector(-139.0015, -73.152, 0), App.Vector(0, 0, 1), 3.571875), False)
sketch4.addGeometry(Part.Circle(App.Vector(-139.0015, 73.152, 0), App.Vector(0, 0, 1), 3.571875), False)
sketch4.addGeometry(Part.Circle(App.Vector(139.0015, 73.152, 0), App.Vector(0, 0, 1), 3.571875), False)
sketch4.addConstraint(Sketcher.Constraint("Equal", 0, 1))
sketch4.addConstraint(Sketcher.Constraint("Equal", 1, 2))
sketch4.addConstraint(Sketcher.Constraint("Equal", 2, 3))
sketch4.addConstraint(Sketcher.Constraint("Symmetric", 0, 3, 2, 3, -1, 1))
sketch4.addConstraint(Sketcher.Constraint("Symmetric", 1, 3, 3, 3, -1, 1))
sketch4.addConstraint(Sketcher.Constraint("Symmetric", 0, 3, 1, 3, -2))
sketch4.addConstraint(Sketcher.Constraint("Diameter", 0, Q("0.28125 in")))
sketch4.addConstraint(Sketcher.Constraint("DistanceY", 0, 3, -1, 1, Q("2.88 in")))
sketch4.addConstraint(Sketcher.Constraint("DistanceX", 1, 3, 0, 3, Q("10.945 in")))
doc.recompute()
hole = body.newObject("PartDesign::Hole", "Hole")
hole.Profile = sketch4
hole.ThreadType = "None"
hole.Diameter = Q("0.28125 in")
hole.DepthType = "ThroughAll"
doc.recompute()

fillet = body.newObject("PartDesign::Fillet", "Fillet")
fillet.Base = (hole, edges_at(hole, [
    (-209.55, 0.787, 88.9),
    (-209.55, 0.787, -88.9),
    (138.045, 0.787, 69.711),
    (135.56, 0.787, 72.195),
    (-135.56, 0.787, 72.195),
    (-138.045, 0.787, 69.711),
    (-138.045, 0.787, -69.711),
    (-135.56, 0.787, -72.195),
    (135.56, 0.787, -72.195),
    (138.045, 0.787, -69.711),
]))
fillet.Radius = Q("0.1 in")

# Sketch on XZ plane
sketch5 = body.newObject("Sketcher::SketchObject", "Sketch004")
sketch5.AttachmentSupport = (doc.getObject("XZ_Plane"), [""])
sketch5.MapMode = "FlatFace"
sketch5.addGeometry(Part.Circle(App.Vector(59.69, 0, 0), App.Vector(0, 0, 1), 2.15265), False)
sketch5.addGeometry(Part.Circle(App.Vector(-59.69, 0, 0), App.Vector(0, 0, 1), 2.15265), False)
sketch5.addConstraint(Sketcher.Constraint("Equal", 0, 1))
sketch5.addConstraint(Sketcher.Constraint("Symmetric", 0, 3, 1, 3, -1, 1))
sketch5.addConstraint(Sketcher.Constraint("PointOnObject", 0, 3, -1))
sketch5.addConstraint(Sketcher.Constraint("Diameter", 0, Q("0.1695 in")))
sketch5.addConstraint(Sketcher.Constraint("DistanceX", 1, 3, 0, 3, Q("4.7 in")))
doc.recompute()
hole2 = body.newObject("PartDesign::Hole", "Hole001")
hole2.Profile = sketch5
hole2.ThreadType = "None"
hole2.Diameter = Q("0.1695 in")
hole2.DepthType = "ThroughAll"

doc.recompute()
